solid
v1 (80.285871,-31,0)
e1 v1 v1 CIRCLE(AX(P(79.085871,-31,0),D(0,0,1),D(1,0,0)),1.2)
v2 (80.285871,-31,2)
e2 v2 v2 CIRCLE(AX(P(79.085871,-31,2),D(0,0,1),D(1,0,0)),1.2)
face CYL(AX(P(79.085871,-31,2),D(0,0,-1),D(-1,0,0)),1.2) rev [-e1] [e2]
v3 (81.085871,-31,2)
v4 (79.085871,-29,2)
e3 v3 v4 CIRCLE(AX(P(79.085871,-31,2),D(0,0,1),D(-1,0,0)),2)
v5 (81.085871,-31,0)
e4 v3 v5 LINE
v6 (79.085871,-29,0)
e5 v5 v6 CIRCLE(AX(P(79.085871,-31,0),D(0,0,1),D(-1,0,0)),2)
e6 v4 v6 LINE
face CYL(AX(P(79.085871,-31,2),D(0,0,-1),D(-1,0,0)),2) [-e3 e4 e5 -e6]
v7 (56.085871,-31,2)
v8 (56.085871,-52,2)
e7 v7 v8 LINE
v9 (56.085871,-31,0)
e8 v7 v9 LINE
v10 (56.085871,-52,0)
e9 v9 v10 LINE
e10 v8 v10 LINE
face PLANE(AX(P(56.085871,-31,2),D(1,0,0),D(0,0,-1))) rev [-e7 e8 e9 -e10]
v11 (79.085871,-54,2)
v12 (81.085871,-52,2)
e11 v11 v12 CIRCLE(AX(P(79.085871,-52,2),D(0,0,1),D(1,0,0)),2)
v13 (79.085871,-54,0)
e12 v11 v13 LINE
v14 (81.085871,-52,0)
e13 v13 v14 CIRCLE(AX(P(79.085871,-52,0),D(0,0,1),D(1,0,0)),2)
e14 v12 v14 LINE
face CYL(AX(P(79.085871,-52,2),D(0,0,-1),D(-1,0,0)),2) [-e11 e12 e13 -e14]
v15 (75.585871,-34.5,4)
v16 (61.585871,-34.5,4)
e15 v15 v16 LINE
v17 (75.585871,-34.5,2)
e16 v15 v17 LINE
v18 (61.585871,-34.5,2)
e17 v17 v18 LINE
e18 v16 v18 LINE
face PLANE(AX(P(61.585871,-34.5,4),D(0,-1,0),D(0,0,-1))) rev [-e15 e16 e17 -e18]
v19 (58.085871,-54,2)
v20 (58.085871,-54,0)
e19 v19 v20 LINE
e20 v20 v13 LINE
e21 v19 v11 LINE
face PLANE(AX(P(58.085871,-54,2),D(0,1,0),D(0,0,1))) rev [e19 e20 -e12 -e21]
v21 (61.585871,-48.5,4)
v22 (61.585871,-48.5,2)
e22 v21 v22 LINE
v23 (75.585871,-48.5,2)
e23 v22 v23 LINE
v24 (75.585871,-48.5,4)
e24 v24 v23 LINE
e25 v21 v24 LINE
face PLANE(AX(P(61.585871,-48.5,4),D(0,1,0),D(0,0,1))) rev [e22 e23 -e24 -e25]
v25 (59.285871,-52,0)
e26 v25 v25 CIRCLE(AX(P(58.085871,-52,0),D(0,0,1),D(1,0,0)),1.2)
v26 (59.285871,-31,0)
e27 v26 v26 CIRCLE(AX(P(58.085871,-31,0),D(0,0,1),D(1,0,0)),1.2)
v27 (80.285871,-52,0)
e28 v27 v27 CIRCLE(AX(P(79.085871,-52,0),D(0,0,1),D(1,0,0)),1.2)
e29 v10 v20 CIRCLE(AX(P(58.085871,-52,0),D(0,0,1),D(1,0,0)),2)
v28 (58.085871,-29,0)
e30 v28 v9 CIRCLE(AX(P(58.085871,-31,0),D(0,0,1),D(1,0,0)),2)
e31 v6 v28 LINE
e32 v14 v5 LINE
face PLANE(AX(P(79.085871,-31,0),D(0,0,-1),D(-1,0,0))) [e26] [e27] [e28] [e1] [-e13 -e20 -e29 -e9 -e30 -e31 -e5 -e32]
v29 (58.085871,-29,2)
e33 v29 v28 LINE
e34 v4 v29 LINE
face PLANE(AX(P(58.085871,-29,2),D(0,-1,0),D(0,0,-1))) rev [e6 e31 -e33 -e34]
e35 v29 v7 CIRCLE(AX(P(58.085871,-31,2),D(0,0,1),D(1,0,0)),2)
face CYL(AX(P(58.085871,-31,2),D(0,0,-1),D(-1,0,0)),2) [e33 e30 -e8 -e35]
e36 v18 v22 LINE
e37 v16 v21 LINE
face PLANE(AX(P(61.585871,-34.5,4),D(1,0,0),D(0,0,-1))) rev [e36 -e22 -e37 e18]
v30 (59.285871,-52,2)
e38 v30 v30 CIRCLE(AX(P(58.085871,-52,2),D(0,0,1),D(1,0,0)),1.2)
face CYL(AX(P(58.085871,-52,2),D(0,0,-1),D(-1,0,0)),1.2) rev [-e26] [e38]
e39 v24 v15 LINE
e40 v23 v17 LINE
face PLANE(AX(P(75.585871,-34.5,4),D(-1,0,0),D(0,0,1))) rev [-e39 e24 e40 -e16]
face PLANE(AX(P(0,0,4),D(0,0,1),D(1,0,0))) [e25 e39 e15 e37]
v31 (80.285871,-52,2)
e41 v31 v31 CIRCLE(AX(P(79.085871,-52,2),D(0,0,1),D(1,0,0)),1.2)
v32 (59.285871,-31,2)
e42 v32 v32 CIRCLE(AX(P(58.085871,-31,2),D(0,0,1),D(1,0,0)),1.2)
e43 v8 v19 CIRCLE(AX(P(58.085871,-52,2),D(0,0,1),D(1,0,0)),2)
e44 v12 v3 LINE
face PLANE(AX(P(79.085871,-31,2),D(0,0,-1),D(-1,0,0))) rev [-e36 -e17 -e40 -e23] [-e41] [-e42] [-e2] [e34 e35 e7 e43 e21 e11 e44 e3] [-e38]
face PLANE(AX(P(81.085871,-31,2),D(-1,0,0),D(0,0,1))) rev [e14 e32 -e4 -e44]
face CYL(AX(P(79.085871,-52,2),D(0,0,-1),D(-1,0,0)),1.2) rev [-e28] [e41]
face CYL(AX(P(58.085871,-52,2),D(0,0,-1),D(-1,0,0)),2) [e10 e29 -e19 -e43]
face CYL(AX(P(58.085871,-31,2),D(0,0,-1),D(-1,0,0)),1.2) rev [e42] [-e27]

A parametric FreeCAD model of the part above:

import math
import FreeCAD as App
import Part
import Sketcher

V = App.Vector


def add_polygon(sketch, points):
    """Adds a closed chain of lines whose ends are joined by coincident constraints."""
    first, n = sketch.GeometryCount, len(points)
    for a, b in zip(points, points[1:] + points[:1]):
        sketch.addGeometry(Part.LineSegment(App.Vector(*a, 0), App.Vector(*b, 0)), False)
    for i in range(n):
        sketch.addConstraint(Sketcher.Constraint("Coincident", first + i, 2, first + (i + 1) % n, 1))

doc = App.newDocument("Part")
params = doc.addObject("Spreadsheet::Sheet", "Params")
for row, (alias, value) in enumerate([
    ("sketch1_radius", "2 mm"),
    ("sketch1_diameter", "2.4 mm"),
    ("sketch1_width", "21 mm"),
    ("pad1_length", "2 mm"),
    ("sketch2_width", "14 mm"),
    ("pad2_length", "2 mm"),
], start=1):
    params.set(f"A{row}", alias)
    params.set(f"B{row}", "=" + value)
    params.setAlias(f"B{row}", alias)

body = doc.addObject("PartDesign::Body", "Body")

# Sketch on XY plane
sketch1 = body.newObject("Sketcher::SketchObject", "Sketch")
sketch1.AttachmentSupport = (doc.getObject("XY_Plane"), [""])
sketch1.MapMode = "FlatFace"
sketch1.addGeometry([
    Part.LineSegment(V(79.1, -29, 0), V(58.1, -29, 0)),  # 0
    Part.ArcOfCircle(Part.Circle(V(58.1, -31, 0), V(0, 0, 1), 2), math.radians(90), math.radians(180)),  # 1
    Part.LineSegment(V(56.1, -31, 0), V(56.1, -52, 0)),  # 2
    Part.ArcOfCircle(Part.Circle(V(58.1, -52, 0), V(0, 0, 1), 2), math.radians(180), math.radians(270)),  # 3
    Part.LineSegment(V(58.1, -54, 0), V(79.1, -54, 0)),  # 4
    Part.ArcOfCircle(Part.Circle(V(79.1, -52, 0), V(0, 0, 1), 2), math.radians(-90), math.radians(0)),  # 5
    Part.LineSegment(V(81.1, -52, 0), V(81.1, -31, 0)),  # 6
    Part.ArcOfCircle(Part.Circle(V(79.1, -31, 0), V(0, 0, 1), 2), math.radians(0), math.radians(90)),  # 7
    Part.Circle(V(79.1, -52, 0), V(0, 0, 1), 1.2),  # 8
    Part.Circle(V(58.1, -52, 0), V(0, 0, 1), 1.2),  # 9
    Part.Circle(V(79.1, -31, 0), V(0, 0, 1), 1.2),  # 10
    Part.Circle(V(58.1, -31, 0), V(0, 0, 1), 1.2),  # 11
], False)
sketch1.addConstraint([
    Sketcher.Constraint("Tangent", 0, 2, 1, 1),
    Sketcher.Constraint("Tangent", 1, 2, 2, 1),
    Sketcher.Constraint("Tangent", 2, 2, 3, 1),
    Sketcher.Constraint("Tangent", 3, 2, 4, 1),
    Sketcher.Constraint("Tangent", 4, 2, 5, 1),
    Sketcher.Constraint("Tangent", 5, 2, 6, 1),
    Sketcher.Constraint("Tangent", 6, 2, 7, 1),
    Sketcher.Constraint("Tangent", 7, 2, 0, 1),
    Sketcher.Constraint("Horizontal", 0),
    Sketcher.Constraint("Vertical", 2),
    Sketcher.Constraint("Horizontal", 4),
    Sketcher.Constraint("Vertical", 6),
    Sketcher.Constraint("Coincident", 8, 3, 5, 3),
    Sketcher.Constraint("Coincident", 9, 3, 3, 3),
    Sketcher.Constraint("Coincident", 10, 3, 7, 3),
    Sketcher.Constraint("Coincident", 11, 3, 1, 3),
    Sketcher.Constraint("Equal", 1, 3),
    Sketcher.Constraint("Equal", 3, 5),
    Sketcher.Constraint("Equal", 5, 7),
    Sketcher.Constraint("Equal", 8, 9),
    Sketcher.Constraint("Equal", 9, 10),
    Sketcher.Constraint("Equal", 10, 11),
    Sketcher.Constraint("Equal", 4, 2),
    Sketcher.Constraint("Radius", 1, 2.0),
    Sketcher.Constraint("Diameter", 8, 2.4),
    Sketcher.Constraint("DistanceX", 0, 2, 0, 1, 21.0),
    Sketcher.Constraint("DistanceY", 1, 3, -1, 1, 31.0),
    Sketcher.Constraint("DistanceX", -1, 1, 1, 3, 58.085871),
])
sketch1.setExpression("Constraints[23]", "Params.sketch1_radius")
sketch1.setExpression("Constraints[24]", "Params.sketch1_diameter")
sketch1.setExpression("Constraints[25]", "Params.sketch1_width")
pad1 = body.newObject("PartDesign::Pad", "Pad")
pad1.Profile = sketch1
pad1.setExpression("Length", "Params.pad1_length")

# Sketch on XY plane
sketch2 = body.newObject("Sketcher::SketchObject", "Sketch001")
sketch2.AttachmentSupport = (doc.getObject("XY_Plane"), [""])
sketch2.MapMode = "FlatFace"
sketch2.AttachmentOffset = App.Placement(V(0, 0, 2), App.Rotation())
add_polygon(sketch2, [(62, -34), (62, -48), (76, -48), (76, -34)])  # lines 0-3
sketch2.addConstraint([
    Sketcher.Constraint("Vertical", 0),
    Sketcher.Constraint("Horizontal", 1),
    Sketcher.Constraint("Vertical", 2),
    Sketcher.Constraint("Horizontal", 3),
    Sketcher.Constraint("Equal", 3, 0),
    Sketcher.Constraint("DistanceX", 1, 1, 1, 2, 14.0),
    Sketcher.Constraint("DistanceY", 0, 2, -1, 1, 48.5),
    Sketcher.Constraint("DistanceX", -1, 1, 0, 2, 61.585871),
])
sketch2.setExpression("Constraints[9]", "Params.sketch2_width")
pad2 = body.newObject("PartDesign::Pad", "Pad001")
pad2.Profile = sketch2
pad2.setExpression("Length", "Params.pad2_length")

doc.recompute()
